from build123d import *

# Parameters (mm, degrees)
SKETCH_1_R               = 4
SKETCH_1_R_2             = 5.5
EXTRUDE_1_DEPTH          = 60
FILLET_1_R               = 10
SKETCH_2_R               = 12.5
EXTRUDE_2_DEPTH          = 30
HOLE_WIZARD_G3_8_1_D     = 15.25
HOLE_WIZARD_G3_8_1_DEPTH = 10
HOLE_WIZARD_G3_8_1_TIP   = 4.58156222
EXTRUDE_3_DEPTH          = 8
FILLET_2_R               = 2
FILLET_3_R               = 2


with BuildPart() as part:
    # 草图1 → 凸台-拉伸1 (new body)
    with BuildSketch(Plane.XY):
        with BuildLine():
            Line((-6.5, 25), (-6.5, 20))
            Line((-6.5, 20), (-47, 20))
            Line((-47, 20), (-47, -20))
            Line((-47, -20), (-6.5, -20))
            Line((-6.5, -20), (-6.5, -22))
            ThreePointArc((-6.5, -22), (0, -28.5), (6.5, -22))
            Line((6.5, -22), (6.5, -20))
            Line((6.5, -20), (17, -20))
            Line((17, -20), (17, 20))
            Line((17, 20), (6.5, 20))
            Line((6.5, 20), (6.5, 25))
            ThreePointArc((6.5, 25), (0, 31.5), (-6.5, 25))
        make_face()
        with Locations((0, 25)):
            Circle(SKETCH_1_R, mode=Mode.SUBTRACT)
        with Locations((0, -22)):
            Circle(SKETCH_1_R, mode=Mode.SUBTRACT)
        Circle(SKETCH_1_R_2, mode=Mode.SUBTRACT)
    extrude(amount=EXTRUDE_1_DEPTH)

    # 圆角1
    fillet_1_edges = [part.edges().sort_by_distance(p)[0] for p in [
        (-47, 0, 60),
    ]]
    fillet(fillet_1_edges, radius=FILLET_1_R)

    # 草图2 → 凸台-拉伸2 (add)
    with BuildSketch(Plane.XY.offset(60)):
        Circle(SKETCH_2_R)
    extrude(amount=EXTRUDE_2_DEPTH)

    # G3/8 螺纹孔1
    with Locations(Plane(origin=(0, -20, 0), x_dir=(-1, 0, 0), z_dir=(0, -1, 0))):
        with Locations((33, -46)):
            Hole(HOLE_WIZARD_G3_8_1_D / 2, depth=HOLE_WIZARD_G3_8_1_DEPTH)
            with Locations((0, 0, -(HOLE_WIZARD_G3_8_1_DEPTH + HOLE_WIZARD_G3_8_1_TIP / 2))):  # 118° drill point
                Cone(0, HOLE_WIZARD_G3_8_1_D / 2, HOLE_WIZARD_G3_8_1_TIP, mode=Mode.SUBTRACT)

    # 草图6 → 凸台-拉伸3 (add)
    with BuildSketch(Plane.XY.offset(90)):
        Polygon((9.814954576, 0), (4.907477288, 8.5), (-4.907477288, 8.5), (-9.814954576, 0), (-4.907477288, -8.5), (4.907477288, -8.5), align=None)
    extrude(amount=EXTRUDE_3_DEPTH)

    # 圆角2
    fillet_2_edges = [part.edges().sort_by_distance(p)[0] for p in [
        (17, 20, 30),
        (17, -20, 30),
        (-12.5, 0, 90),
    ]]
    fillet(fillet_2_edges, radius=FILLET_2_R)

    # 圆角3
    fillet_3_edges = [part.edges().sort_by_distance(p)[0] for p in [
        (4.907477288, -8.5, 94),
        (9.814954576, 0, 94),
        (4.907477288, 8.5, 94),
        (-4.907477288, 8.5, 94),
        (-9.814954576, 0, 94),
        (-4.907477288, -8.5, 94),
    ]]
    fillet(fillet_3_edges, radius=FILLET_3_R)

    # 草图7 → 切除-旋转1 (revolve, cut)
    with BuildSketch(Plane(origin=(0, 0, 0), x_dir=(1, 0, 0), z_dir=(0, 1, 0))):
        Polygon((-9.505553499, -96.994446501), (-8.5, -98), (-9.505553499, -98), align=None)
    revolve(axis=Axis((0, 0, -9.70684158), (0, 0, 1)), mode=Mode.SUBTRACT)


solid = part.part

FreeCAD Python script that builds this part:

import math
import FreeCAD as App
import Part
import Sketcher

V = App.Vector
Q = App.Units.Quantity


def edges_at(feature, points):
    """Names of the edges that pass closest to the given points."""
    edges = feature.Shape.Edges
    near = lambda p: min(range(len(edges)), key=lambda i: edges[i].distToShape(Part.Vertex(*p))[0])
    return sorted({f"Edge{near(p) + 1}" for p in points})

doc = App.newDocument("Part")
body = doc.addObject("PartDesign::Body", "Body")

# Sketch on XY plane
sketch1 = doc.addObject("Sketcher::SketchObject", "Sketch")
body.addObject(sketch1)
sketch1.AttachmentSupport = (doc.XY_Plane, [""])
sketch1.MapMode = "FlatFace"
sketch1.addGeometry([
    Part.LineSegment(V(-6.5, 25, 0), V(-6.5, 20, 0)),  # 0
    Part.LineSegment(V(-6.5, 20, 0), V(-47, 20, 0)),  # 1
    Part.LineSegment(V(-47, 20, 0), V(-47, -20, 0)),  # 2
    Part.LineSegment(V(-47, -20, 0), V(-6.5, -20, 0)),  # 3
    Part.LineSegment(V(-6.5, -20, 0), V(-6.5, -22, 0)),  # 4
    Part.ArcOfCircle(Part.Circle(V(0, -22, 0), V(0, 0, 1), 6.5), math.radians(180), math.radians(360)),  # 5
    Part.LineSegment(V(6.5, -22, 0), V(6.5, -20, 0)),  # 6
    Part.LineSegment(V(6.5, -20, 0), V(17, -20, 0)),  # 7
    Part.LineSegment(V(17, -20, 0), V(17, 20, 0)),  # 8
    Part.LineSegment(V(17, 20, 0), V(6.5, 20, 0)),  # 9
    Part.LineSegment(V(6.5, 20, 0), V(6.5, 25, 0)),  # 10
    Part.ArcOfCircle(Part.Circle(V(0, 25, 0), V(0, 0, 1), 6.5), math.radians(0), math.radians(180)),  # 11
    Part.Circle(V(0, -22, 0), V(0, 0, 1), 4),  # 12
    Part.Circle(V(0, 0, 0), V(0, 0, 1), 5.5),  # 13
    Part.Circle(V(0, 25, 0), V(0, 0, 1), 4),  # 14
], False)
sketch1.addConstraint([
    Sketcher.Constraint("Coincident", 0, 2, 1, 1),
    Sketcher.Constraint("Coincident", 1, 2, 2, 1),
    Sketcher.Constraint("Coincident", 2, 2, 3, 1),
    Sketcher.Constraint("Coincident", 3, 2, 4, 1),
    Sketcher.Constraint("Tangent", 4, 2, 5, 1),
    Sketcher.Constraint("Tangent", 5, 2, 6, 1),
    Sketcher.Constraint("Coincident", 6, 2, 7, 1),
    Sketcher.Constraint("Coincident", 7, 2, 8, 1),
    Sketcher.Constraint("Coincident", 8, 2, 9, 1),
    Sketcher.Constraint("Coincident", 9, 2, 10, 1),
    Sketcher.Constraint("Tangent", 10, 2, 11, 1),
    Sketcher.Constraint("Tangent", 11, 2, 0, 1),
    Sketcher.Constraint("Vertical", 0),
    Sketcher.Constraint("Horizontal", 1),
    Sketcher.Constraint("Vertical", 2),
    Sketcher.Constraint("Horizontal", 3),
    Sketcher.Constraint("Vertical", 4),
    Sketcher.Constraint("Vertical", 6),
    Sketcher.Constraint("Horizontal", 7),
    Sketcher.Constraint("Vertical", 8),
    Sketcher.Constraint("Horizontal", 9),
    Sketcher.Constraint("Vertical", 10),
    Sketcher.Constraint("Coincident", 13, 3, -1, 1),
    Sketcher.Constraint("Coincident", 12, 3, 5, 3),
    Sketcher.Constraint("Coincident", 14, 3, 11, 3),
    Sketcher.Constraint("Equal", 5, 11),
    Sketcher.Constraint("Equal", 12, 14),
    Sketcher.Constraint("Symmetric", 0, 2, 6, 2, -1, 1),
    Sketcher.Constraint("Symmetric", 3, 2, 6, 2, -2),
    Sketcher.Constraint("Horizontal", 1, 2, 8, 2),
    Sketcher.Constraint("Diameter", 12, 8.0),
    Sketcher.Constraint("Diameter", 13, 11.0),
    Sketcher.Constraint("Radius", 5, 6.5),
    Sketcher.Constraint("DistanceY", 0, 2, 0, 1, 5.0),
    Sketcher.Constraint("DistanceY", 2, 2, 2, 1, 40.0),
    Sketcher.Constraint("DistanceY", 4, 2, 4, 1, 2.0),
    Sketcher.Constraint("DistanceX", 1, 2, 1, 1, 40.5),
    Sketcher.Constraint("DistanceX", 7, 1, 7, 2, 10.5),
])
pad1 = doc.addObject("PartDesign::Pad", "Pad")
body.addObject(pad1)
pad1.Profile = sketch1
pad1.Length = 60
doc.recompute()

fillet = doc.addObject("PartDesign::Fillet", "Fillet")
body.addObject(fillet)
fillet.Base = (pad1, edges_at(pad1, [(-47, 0, 60)]))
fillet.Radius = 10

# Sketch on XY plane
sketch2 = doc.addObject("Sketcher::SketchObject", "Sketch001")
body.addObject(sketch2)
sketch2.AttachmentSupport = (doc.XY_Plane, [""])
sketch2.MapMode = "FlatFace"
sketch2.AttachmentOffset = App.Placement(V(0, 0, 60), App.Rotation())
sketch2.addGeometry(Part.Circle(V(0, 0, 0), V(0, 0, 1), 12), False)
sketch2.addConstraint([
    Sketcher.Constraint("Coincident", 0, 3, -1, 1),
    Sketcher.Constraint("Diameter", 0, 25.0),
])
pad2 = doc.addObject("PartDesign::Pad", "Pad001")
body.addObject(pad2)
pad2.Profile = sketch2
pad2.Length = 30

# Sketch on XZ plane
sketch3 = doc.addObject("Sketcher::SketchObject", "Sketch002")
body.addObject(sketch3)
sketch3.AttachmentSupport = (doc.XZ_Plane, [""])
sketch3.MapMode = "FlatFace"
sketch3.AttachmentOffset = App.Placement(V(0, 0, 20), App.Rotation())
sketch3.addGeometry(Part.Circle(V(-33, 46, 0), V(0, 0, 1), 8), False)
sketch3.addConstraint([
    Sketcher.Constraint("Diameter", 0, 15.25),
    Sketcher.Constraint("DistanceX", 0, 3, -1, 1, 33.0),
    Sketcher.Constraint("DistanceY", -1, 1, 0, 3, 46.0),
])
doc.recompute()
hole = doc.addObject("PartDesign::Hole", "Hole")
body.addObject(hole)
hole.Profile = sketch3
hole.ThreadType = "None"
hole.Diameter = 15.25
hole.DepthType = "Dimension"
hole.Depth = 10
hole.DrillPoint = "Angled"
hole.DrillPointAngle = 118

# Sketch on XY plane
sketch4 = doc.addObject("Sketcher::SketchObject", "Sketch003")
body.addObject(sketch4)
sketch4.AttachmentSupport = (doc.XY_Plane, [""])
sketch4.MapMode = "FlatFace"
sketch4.AttachmentOffset = App.Placement(V(0, 0, 90), App.Rotation())
sketch4.addGeometry([
    Part.LineSegment(V(10, 0, 0), V(5, 8, 0)),  # 0
    Part.LineSegment(V(5, 8, 0), V(-5, 8, 0)),  # 1
    Part.LineSegment(V(-5, 8, 0), V(-10, 0, 0)),  # 2
    Part.LineSegment(V(-10, 0, 0), V(-5, -8, 0)),  # 3
    Part.LineSegment(V(-5, -8, 0), V(5, -8, 0)),  # 4
    Part.LineSegment(V(5, -8, 0), V(10, 0, 0)),  # 5
], False)
sketch4.addConstraint([
    Sketcher.Constraint("Coincident", 0, 2, 1, 1),
    Sketcher.Constraint("Coincident", 1, 2, 2, 1),
    Sketcher.Constraint("Coincident", 2, 2, 3, 1),
    Sketcher.Constraint("Coincident", 3, 2, 4, 1),
    Sketcher.Constraint("Coincident", 4, 2, 5, 1),
    Sketcher.Constraint("Coincident", 5, 2, 0, 1),
    Sketcher.Constraint("Horizontal", 1),
    Sketcher.Constraint("Horizontal", 4),
    Sketcher.Constraint("Symmetric", 0, 2, 3, 2, -1, 1),
    Sketcher.Constraint("Symmetric", 2, 2, 5, 2, -1, 1),
    Sketcher.Constraint("PointOnObject", 2, 2, -1),
    Sketcher.Constraint("Parallel", 2, 5),
    Sketcher.Constraint("Vertical", 1, 2, 3, 2),
    Sketcher.Constraint("Angle", 0, Q("120 deg")),
    Sketcher.Constraint("DistanceY", 3, 2, 1, 2, 17.0),
    Sketcher.Constraint("DistanceX", 1, 2, 1, 1, 9.814955),
])
pad3 = doc.addObject("PartDesign::Pad", "Pad002")
body.addObject(pad3)
pad3.Profile = sketch4
pad3.Length = 8
doc.recompute()

fillet2 = doc.addObject("PartDesign::Fillet", "Fillet001")
body.addObject(fillet2)
fillet2.Base = (pad3, edges_at(pad3, [(17, 20, 30), (17, -20, 30), (-12.5, 0, 90)]))
fillet2.Radius = 2
doc.recompute()

fillet3 = doc.addObject("PartDesign::Fillet", "Fillet002")
body.addObject(fillet3)
fillet3.Base = (fillet2, edges_at(fillet2, [
    (4.907, -8.5, 94),
    (9.815, 0, 94),
    (4.907, 8.5, 94),
    (-4.907, 8.5, 94),
    (-9.815, 0, 94),
    (-4.907, -8.5, 94),
]))
fillet3.Radius = 2

# Sketch on XZ plane
sketch5 = doc.addObject("Sketcher::SketchObject", "Sketch004")
body.addObject(sketch5)
sketch5.AttachmentSupport = (doc.XZ_Plane, [""])
sketch5.MapMode = "FlatFace"
sketch5.addGeometry([
    Part.LineSegment(V(-8.5, 98, 0), V(-9.5, 97, 0)),
    Part.LineSegment(V(-9.5, 97, 0), V(-9.5, 98, 0)),
    Part.LineSegment(V(-9.5, 98, 0), V(-8.5, 98, 0)),
], False)
sketch5.addConstraint([
    Sketcher.Constraint("Coincident", 0, 2, 1, 1),
    Sketcher.Constraint("Coincident", 1, 2, 2, 1),
    Sketcher.Constraint("Coincident", 2, 2, 0, 1),
    Sketcher.Constraint("Vertical", 1),
    Sketcher.Constraint("Horizontal", 2),
    Sketcher.Constraint("Equal", 2, 1),
    Sketcher.Constraint("DistanceY", -1, 1, 1, 2, 98.0),
    Sketcher.Constraint("DistanceX", 2, 2, -1, 1, 8.5),
    Sketcher.Constraint("DistanceX", 2, 1, 2, 2, 1.005553),
])
groove = doc.addObject("PartDesign::Groove", "Groove")
body.addObject(groove)
groove.Profile = sketch5
groove.ReferenceAxis = (sketch5, ["V_Axis"])
groove.Angle = 360

doc.recompute()
